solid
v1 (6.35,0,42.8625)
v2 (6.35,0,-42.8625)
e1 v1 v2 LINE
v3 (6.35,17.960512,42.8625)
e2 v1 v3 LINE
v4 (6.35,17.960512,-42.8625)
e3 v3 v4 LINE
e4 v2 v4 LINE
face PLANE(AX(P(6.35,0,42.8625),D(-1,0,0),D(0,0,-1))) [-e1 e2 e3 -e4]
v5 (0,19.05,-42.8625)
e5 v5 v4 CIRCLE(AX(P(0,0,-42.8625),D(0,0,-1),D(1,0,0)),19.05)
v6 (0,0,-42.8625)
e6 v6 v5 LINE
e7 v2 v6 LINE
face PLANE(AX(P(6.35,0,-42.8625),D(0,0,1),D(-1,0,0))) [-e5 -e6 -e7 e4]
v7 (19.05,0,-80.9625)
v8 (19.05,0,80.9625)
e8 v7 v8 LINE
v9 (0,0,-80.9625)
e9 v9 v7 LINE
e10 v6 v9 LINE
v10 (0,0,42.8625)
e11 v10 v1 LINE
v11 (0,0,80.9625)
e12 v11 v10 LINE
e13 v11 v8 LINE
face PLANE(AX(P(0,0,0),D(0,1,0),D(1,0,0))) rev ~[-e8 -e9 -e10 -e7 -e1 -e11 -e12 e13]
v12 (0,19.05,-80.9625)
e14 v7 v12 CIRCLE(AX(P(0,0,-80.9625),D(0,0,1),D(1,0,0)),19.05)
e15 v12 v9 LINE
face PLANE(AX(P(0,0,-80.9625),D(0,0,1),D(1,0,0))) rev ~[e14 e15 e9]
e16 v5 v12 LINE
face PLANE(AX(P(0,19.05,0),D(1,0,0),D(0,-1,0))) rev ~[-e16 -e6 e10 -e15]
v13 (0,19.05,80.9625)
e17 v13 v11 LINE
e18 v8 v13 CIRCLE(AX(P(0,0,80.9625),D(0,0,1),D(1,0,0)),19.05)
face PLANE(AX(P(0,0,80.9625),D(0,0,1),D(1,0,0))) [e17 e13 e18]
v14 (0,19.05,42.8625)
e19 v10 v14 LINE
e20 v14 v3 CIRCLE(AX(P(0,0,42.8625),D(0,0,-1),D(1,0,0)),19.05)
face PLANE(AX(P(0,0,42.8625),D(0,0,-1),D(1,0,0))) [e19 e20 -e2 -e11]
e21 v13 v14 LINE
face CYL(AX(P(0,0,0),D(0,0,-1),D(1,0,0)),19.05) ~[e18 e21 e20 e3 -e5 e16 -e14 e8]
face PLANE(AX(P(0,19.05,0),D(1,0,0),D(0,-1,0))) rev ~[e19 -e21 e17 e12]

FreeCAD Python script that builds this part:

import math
import FreeCAD as App
import Part
import Sketcher
from FreeCAD import Vector
Q = App.Units.Quantity


def add_polygon(sketch, points):
    """Adds a closed chain of lines whose ends are joined by coincident constraints."""
    first, n = sketch.GeometryCount, len(points)
    for a, b in zip(points, points[1:] + points[:1]):
        sketch.addGeometry(Part.LineSegment(App.Vector(*a, 0), App.Vector(*b, 0)), False)
    for i in range(n):
        sketch.addConstraint(Sketcher.Constraint("Coincident", first + i, 2, first + (i + 1) % n, 1))

doc = App.newDocument("Part")
params = doc.addObject("Spreadsheet::Sheet", "Params")
for row, (alias, value) in enumerate([
    ("sketch1_radius", "0.75 in"),
    ("pad1_length", "6.375 in"),
    ("sketch2_width", "0.25 in"),
    ("sketch2_height", "3.375 in"),
], start=1):
    params.set(f"A{row}", alias)
    params.set(f"B{row}", "=" + value)
    params.setAlias(f"B{row}", alias)

body = doc.addObject("PartDesign::Body", "Body")

# Sketch on XY plane
sketch1 = body.newObject("Sketcher::SketchObject", "Sketch")
sketch1.AttachmentSupport = (doc.getObject("XY_Plane"), [""])
sketch1.MapMode = "FlatFace"
sketch1.addGeometry(Part.LineSegment(Vector(0, 0, 0), Vector(19, 0, 0)), False)
sketch1.addGeometry(Part.ArcOfCircle(Part.Circle(Vector(0, 0, 0), Vector(0, 0, 1), 19), math.radians(0), math.radians(90)), False)
sketch1.addGeometry(Part.LineSegment(Vector(0, 19, 0), Vector(0, 0, 0)), False)
sketch1.addConstraint(Sketcher.Constraint("Coincident", 0, 2, 1, 1))
sketch1.addConstraint(Sketcher.Constraint("Coincident", 1, 2, 2, 1))
sketch1.addConstraint(Sketcher.Constraint("Coincident", 2, 2, 0, 1))
sketch1.addConstraint(Sketcher.Constraint("Horizontal", 0))
sketch1.addConstraint(Sketcher.Constraint("Vertical", 2))
sketch1.addConstraint(Sketcher.Constraint("Coincident", 1, 3, -1, 1))
sketch1.addConstraint(Sketcher.Constraint("Coincident", 2, 2, -1, 1))
sketch1.addConstraint(Sketcher.Constraint("Radius", 1, Q("0.75 in")))
sketch1.setExpression("Constraints[7]", "Params.sketch1_radius")
pad1 = body.newObject("PartDesign::Pad", "Pad")
pad1.Profile = sketch1
pad1.setExpression("Length", "Params.pad1_length")
pad1.Midplane = True

# Sketch on XZ plane
sketch2 = body.newObject("Sketcher::SketchObject", "Sketch001")
sketch2.AttachmentSupport = (doc.getObject("XZ_Plane"), [""])
sketch2.MapMode = "FlatFace"
add_polygon(sketch2, [(6, 43), (0, 43), (0, -43), (6, -43)])  # lines 0-3
sketch2.addConstraint(Sketcher.Constraint("Horizontal", 0))
sketch2.addConstraint(Sketcher.Constraint("Vertical", 1))
sketch2.addConstraint(Sketcher.Constraint("Horizontal", 2))
sketch2.addConstraint(Sketcher.Constraint("Vertical", 3))
sketch2.addConstraint(Sketcher.Constraint("Symmetric", 0, 2, 1, 2, -1, 1))
sketch2.addConstraint(Sketcher.Constraint("DistanceX", 0, 2, 0, 1, Q("0.25 in")))
sketch2.addConstraint(Sketcher.Constraint("DistanceY", 1, 2, 1, 1, Q("3.375 in")))
sketch2.setExpression("Constraints[9]", "Params.sketch2_width")
sketch2.setExpression("Constraints[10]", "Params.sketch2_height")
pocket1 = body.newObject("PartDesign::Pocket", "Pocket")
pocket1.Profile = sketch2
pocket1.Type = "ThroughAll"

doc.recompute()
